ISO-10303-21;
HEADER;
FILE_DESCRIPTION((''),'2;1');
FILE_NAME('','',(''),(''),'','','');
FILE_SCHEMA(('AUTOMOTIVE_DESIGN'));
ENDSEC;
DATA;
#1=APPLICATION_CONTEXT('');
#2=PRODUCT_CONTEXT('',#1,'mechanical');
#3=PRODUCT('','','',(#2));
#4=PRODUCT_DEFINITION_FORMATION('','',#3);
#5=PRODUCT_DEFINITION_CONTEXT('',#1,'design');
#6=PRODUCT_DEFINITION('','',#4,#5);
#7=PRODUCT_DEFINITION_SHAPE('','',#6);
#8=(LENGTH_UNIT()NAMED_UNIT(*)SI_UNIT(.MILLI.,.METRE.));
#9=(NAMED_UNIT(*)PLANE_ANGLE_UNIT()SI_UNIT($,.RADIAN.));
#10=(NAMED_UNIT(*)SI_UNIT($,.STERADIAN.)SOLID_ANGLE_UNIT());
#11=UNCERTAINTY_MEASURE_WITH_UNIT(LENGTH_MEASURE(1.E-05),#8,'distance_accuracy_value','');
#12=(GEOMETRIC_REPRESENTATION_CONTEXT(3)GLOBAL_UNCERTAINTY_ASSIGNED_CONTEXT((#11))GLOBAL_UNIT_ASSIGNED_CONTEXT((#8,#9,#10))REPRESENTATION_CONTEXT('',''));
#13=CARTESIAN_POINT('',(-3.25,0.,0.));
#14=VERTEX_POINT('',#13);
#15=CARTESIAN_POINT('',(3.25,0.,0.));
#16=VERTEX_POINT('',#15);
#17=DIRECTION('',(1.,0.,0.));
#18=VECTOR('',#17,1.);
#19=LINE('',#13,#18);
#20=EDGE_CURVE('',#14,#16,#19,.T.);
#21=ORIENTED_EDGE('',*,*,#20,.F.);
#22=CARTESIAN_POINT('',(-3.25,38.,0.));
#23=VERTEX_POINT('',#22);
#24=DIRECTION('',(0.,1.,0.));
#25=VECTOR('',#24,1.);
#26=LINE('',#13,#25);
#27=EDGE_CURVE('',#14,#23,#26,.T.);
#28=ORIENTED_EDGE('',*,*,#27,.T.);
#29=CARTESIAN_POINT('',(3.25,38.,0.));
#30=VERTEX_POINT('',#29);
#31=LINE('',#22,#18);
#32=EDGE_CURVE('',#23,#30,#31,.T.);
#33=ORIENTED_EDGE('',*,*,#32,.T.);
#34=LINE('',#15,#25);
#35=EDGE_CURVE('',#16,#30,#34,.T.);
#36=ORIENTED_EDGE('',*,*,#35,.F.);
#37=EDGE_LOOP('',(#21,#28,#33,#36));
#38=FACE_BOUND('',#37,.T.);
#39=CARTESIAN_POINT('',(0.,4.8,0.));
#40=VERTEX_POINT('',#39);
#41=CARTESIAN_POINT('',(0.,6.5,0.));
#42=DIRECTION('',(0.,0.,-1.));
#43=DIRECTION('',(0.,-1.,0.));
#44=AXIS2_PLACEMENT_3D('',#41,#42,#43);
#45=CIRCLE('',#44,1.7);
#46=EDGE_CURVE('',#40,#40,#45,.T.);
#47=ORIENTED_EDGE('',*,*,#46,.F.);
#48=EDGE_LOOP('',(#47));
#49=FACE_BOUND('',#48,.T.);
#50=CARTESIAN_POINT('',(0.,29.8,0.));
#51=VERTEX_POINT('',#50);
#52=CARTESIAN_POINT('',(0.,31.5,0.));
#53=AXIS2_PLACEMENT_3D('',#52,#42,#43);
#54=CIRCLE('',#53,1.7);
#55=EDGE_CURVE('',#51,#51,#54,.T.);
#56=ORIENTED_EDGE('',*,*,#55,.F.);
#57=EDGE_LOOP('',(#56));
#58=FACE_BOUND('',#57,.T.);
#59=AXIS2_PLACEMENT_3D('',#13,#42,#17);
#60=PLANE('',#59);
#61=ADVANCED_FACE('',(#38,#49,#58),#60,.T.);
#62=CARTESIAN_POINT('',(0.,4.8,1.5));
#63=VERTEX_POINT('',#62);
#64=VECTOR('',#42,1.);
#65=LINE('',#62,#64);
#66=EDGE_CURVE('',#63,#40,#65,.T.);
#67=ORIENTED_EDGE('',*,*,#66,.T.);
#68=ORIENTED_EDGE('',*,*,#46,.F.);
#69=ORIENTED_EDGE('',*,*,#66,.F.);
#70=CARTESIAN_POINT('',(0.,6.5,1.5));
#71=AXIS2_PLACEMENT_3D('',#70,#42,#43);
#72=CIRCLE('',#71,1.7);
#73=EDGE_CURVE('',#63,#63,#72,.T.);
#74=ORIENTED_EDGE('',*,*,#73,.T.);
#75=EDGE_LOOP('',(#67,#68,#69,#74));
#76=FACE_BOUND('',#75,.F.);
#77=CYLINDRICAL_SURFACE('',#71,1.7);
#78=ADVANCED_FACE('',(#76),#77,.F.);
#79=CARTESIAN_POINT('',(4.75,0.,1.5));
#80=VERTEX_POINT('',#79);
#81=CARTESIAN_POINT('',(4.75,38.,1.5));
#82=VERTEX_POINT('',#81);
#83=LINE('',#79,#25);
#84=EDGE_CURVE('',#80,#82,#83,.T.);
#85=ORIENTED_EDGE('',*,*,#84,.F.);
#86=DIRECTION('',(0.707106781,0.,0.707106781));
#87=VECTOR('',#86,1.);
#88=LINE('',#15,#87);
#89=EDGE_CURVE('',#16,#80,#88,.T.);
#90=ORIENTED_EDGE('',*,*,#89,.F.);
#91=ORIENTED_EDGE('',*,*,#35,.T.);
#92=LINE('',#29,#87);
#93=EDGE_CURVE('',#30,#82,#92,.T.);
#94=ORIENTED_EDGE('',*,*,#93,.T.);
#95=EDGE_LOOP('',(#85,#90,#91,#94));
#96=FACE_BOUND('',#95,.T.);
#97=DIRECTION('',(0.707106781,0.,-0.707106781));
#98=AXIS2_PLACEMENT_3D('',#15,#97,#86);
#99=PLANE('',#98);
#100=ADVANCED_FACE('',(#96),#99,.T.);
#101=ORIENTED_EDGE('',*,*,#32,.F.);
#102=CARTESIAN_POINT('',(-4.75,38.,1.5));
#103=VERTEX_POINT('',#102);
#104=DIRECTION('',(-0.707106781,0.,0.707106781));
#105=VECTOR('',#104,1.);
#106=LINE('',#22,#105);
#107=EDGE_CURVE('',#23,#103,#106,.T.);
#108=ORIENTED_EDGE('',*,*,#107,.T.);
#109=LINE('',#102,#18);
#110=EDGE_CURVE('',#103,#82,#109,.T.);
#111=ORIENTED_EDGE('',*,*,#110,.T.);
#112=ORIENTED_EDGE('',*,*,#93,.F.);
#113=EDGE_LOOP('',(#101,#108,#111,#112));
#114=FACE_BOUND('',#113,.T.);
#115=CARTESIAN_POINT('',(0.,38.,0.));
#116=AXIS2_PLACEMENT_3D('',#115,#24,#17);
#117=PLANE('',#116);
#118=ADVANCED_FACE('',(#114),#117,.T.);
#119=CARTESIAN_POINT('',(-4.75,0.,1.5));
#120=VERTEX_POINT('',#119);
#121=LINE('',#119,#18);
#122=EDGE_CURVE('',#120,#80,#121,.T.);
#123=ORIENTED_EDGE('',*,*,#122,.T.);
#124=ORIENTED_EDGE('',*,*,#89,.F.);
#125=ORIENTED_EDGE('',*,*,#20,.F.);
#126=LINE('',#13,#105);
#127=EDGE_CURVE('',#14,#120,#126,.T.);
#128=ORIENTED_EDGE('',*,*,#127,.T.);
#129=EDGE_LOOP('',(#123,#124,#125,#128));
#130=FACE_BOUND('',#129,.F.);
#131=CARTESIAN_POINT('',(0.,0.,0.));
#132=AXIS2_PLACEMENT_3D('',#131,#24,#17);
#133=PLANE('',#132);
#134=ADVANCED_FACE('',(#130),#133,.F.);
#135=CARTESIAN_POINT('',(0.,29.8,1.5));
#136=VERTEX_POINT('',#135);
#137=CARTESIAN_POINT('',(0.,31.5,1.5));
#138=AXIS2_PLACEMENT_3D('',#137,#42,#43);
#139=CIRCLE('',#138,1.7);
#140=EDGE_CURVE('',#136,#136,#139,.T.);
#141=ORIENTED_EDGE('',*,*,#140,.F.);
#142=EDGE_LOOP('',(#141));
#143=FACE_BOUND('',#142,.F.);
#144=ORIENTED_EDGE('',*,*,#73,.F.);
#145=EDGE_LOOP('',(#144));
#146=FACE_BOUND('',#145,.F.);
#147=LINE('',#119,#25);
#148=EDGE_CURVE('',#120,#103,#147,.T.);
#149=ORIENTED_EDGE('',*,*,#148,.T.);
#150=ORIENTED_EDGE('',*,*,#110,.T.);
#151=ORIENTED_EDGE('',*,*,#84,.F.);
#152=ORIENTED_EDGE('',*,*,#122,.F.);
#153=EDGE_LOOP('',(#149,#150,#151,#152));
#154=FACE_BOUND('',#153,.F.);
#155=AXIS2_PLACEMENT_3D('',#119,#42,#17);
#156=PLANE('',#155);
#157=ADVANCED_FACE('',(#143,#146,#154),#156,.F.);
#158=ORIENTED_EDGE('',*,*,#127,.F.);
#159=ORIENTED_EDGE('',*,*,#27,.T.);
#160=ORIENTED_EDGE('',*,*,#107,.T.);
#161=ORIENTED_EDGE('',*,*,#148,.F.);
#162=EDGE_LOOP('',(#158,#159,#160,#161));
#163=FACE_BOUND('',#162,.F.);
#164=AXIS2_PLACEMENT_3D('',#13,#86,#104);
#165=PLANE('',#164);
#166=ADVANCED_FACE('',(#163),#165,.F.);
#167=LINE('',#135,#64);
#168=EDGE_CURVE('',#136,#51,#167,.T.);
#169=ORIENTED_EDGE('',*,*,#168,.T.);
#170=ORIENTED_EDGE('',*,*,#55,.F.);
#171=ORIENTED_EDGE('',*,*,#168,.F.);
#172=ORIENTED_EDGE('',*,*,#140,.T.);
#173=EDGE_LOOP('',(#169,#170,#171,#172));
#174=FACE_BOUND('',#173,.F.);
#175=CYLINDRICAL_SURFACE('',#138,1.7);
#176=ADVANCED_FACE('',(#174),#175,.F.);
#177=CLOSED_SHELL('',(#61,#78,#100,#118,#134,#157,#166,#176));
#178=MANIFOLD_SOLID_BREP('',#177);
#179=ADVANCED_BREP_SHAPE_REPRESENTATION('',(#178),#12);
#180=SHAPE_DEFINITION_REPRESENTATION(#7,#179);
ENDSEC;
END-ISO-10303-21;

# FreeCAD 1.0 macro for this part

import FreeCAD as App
import Part
import Sketcher
from FreeCAD import Vector


def add_polygon(sketch, points):
    """Adds a closed chain of lines whose ends are joined by coincident constraints."""
    first, n = sketch.GeometryCount, len(points)
    for a, b in zip(points, points[1:] + points[:1]):
        sketch.addGeometry(Part.LineSegment(App.Vector(*a, 0), App.Vector(*b, 0)), False)
    for i in range(n):
        sketch.addConstraint(Sketcher.Constraint("Coincident", first + i, 2, first + (i + 1) % n, 1))

doc = App.newDocument("Part")
body = doc.addObject("PartDesign::Body", "Body")

# Sketch on XZ plane
sketch1 = body.newObject("Sketcher::SketchObject", "Sketch")
sketch1.AttachmentSupport = (doc.getObject("XZ_Plane"), [""])
sketch1.MapMode = "FlatFace"
add_polygon(sketch1, [(3.2, 0), (-3.2, 0), (-4.8, 1.5), (4.8, 1.5)])  # lines 0-3
sketch1.addConstraint([
    Sketcher.Constraint("Horizontal", 0),
    Sketcher.Constraint("Horizontal", 2),
    Sketcher.Constraint("Symmetric", 0, 2, 3, 2, -1, 1),
    Sketcher.Constraint("Perpendicular", 1, 3),
    Sketcher.Constraint("Equal", 1, 3),
    Sketcher.Constraint("DistanceX", 0, 2, 0, 1, 6.5),
    Sketcher.Constraint("DistanceX", 2, 1, 2, 2, 9.5),
])
pad1 = body.newObject("PartDesign::Pad", "Pad")
pad1.Profile = sketch1
pad1.Length = 38
pad1.Reversed = True

# Sketch on XY plane
sketch2 = body.newObject("Sketcher::SketchObject", "Sketch001")
sketch2.AttachmentSupport = (doc.getObject("XY_Plane"), [""])
sketch2.MapMode = "FlatFace"
sketch2.AttachmentOffset = App.Placement(Vector(0, 0, 1.5), App.Rotation())
sketch2.addGeometry([
    Part.Circle(Vector(0, 31.5, 0), Vector(0, 0, 1), 1.7),
    Part.Circle(Vector(0, 6.5, 0), Vector(0, 0, 1), 1.7),
], False)
sketch2.addConstraint([
    Sketcher.Constraint("Equal", 0, 1),
    Sketcher.Constraint("PointOnObject", 0, 3, -2),
    Sketcher.Constraint("PointOnObject", 1, 3, -2),
    Sketcher.Constraint("Diameter", 0, 3.4),
    Sketcher.Constraint("DistanceY", 1, 3, 0, 3, 25.0),
    Sketcher.Constraint("DistanceY", -1, 1, 0, 3, 31.5),
])
doc.recompute()
hole = body.newObject("PartDesign::Hole", "Hole")
hole.Profile = sketch2
hole.ThreadType = "None"
hole.Diameter = 3.4
hole.DepthType = "Dimension"
hole.Depth = 16
hole.DrillPoint = "Angled"
hole.DrillPointAngle = 118

doc.recompute()
